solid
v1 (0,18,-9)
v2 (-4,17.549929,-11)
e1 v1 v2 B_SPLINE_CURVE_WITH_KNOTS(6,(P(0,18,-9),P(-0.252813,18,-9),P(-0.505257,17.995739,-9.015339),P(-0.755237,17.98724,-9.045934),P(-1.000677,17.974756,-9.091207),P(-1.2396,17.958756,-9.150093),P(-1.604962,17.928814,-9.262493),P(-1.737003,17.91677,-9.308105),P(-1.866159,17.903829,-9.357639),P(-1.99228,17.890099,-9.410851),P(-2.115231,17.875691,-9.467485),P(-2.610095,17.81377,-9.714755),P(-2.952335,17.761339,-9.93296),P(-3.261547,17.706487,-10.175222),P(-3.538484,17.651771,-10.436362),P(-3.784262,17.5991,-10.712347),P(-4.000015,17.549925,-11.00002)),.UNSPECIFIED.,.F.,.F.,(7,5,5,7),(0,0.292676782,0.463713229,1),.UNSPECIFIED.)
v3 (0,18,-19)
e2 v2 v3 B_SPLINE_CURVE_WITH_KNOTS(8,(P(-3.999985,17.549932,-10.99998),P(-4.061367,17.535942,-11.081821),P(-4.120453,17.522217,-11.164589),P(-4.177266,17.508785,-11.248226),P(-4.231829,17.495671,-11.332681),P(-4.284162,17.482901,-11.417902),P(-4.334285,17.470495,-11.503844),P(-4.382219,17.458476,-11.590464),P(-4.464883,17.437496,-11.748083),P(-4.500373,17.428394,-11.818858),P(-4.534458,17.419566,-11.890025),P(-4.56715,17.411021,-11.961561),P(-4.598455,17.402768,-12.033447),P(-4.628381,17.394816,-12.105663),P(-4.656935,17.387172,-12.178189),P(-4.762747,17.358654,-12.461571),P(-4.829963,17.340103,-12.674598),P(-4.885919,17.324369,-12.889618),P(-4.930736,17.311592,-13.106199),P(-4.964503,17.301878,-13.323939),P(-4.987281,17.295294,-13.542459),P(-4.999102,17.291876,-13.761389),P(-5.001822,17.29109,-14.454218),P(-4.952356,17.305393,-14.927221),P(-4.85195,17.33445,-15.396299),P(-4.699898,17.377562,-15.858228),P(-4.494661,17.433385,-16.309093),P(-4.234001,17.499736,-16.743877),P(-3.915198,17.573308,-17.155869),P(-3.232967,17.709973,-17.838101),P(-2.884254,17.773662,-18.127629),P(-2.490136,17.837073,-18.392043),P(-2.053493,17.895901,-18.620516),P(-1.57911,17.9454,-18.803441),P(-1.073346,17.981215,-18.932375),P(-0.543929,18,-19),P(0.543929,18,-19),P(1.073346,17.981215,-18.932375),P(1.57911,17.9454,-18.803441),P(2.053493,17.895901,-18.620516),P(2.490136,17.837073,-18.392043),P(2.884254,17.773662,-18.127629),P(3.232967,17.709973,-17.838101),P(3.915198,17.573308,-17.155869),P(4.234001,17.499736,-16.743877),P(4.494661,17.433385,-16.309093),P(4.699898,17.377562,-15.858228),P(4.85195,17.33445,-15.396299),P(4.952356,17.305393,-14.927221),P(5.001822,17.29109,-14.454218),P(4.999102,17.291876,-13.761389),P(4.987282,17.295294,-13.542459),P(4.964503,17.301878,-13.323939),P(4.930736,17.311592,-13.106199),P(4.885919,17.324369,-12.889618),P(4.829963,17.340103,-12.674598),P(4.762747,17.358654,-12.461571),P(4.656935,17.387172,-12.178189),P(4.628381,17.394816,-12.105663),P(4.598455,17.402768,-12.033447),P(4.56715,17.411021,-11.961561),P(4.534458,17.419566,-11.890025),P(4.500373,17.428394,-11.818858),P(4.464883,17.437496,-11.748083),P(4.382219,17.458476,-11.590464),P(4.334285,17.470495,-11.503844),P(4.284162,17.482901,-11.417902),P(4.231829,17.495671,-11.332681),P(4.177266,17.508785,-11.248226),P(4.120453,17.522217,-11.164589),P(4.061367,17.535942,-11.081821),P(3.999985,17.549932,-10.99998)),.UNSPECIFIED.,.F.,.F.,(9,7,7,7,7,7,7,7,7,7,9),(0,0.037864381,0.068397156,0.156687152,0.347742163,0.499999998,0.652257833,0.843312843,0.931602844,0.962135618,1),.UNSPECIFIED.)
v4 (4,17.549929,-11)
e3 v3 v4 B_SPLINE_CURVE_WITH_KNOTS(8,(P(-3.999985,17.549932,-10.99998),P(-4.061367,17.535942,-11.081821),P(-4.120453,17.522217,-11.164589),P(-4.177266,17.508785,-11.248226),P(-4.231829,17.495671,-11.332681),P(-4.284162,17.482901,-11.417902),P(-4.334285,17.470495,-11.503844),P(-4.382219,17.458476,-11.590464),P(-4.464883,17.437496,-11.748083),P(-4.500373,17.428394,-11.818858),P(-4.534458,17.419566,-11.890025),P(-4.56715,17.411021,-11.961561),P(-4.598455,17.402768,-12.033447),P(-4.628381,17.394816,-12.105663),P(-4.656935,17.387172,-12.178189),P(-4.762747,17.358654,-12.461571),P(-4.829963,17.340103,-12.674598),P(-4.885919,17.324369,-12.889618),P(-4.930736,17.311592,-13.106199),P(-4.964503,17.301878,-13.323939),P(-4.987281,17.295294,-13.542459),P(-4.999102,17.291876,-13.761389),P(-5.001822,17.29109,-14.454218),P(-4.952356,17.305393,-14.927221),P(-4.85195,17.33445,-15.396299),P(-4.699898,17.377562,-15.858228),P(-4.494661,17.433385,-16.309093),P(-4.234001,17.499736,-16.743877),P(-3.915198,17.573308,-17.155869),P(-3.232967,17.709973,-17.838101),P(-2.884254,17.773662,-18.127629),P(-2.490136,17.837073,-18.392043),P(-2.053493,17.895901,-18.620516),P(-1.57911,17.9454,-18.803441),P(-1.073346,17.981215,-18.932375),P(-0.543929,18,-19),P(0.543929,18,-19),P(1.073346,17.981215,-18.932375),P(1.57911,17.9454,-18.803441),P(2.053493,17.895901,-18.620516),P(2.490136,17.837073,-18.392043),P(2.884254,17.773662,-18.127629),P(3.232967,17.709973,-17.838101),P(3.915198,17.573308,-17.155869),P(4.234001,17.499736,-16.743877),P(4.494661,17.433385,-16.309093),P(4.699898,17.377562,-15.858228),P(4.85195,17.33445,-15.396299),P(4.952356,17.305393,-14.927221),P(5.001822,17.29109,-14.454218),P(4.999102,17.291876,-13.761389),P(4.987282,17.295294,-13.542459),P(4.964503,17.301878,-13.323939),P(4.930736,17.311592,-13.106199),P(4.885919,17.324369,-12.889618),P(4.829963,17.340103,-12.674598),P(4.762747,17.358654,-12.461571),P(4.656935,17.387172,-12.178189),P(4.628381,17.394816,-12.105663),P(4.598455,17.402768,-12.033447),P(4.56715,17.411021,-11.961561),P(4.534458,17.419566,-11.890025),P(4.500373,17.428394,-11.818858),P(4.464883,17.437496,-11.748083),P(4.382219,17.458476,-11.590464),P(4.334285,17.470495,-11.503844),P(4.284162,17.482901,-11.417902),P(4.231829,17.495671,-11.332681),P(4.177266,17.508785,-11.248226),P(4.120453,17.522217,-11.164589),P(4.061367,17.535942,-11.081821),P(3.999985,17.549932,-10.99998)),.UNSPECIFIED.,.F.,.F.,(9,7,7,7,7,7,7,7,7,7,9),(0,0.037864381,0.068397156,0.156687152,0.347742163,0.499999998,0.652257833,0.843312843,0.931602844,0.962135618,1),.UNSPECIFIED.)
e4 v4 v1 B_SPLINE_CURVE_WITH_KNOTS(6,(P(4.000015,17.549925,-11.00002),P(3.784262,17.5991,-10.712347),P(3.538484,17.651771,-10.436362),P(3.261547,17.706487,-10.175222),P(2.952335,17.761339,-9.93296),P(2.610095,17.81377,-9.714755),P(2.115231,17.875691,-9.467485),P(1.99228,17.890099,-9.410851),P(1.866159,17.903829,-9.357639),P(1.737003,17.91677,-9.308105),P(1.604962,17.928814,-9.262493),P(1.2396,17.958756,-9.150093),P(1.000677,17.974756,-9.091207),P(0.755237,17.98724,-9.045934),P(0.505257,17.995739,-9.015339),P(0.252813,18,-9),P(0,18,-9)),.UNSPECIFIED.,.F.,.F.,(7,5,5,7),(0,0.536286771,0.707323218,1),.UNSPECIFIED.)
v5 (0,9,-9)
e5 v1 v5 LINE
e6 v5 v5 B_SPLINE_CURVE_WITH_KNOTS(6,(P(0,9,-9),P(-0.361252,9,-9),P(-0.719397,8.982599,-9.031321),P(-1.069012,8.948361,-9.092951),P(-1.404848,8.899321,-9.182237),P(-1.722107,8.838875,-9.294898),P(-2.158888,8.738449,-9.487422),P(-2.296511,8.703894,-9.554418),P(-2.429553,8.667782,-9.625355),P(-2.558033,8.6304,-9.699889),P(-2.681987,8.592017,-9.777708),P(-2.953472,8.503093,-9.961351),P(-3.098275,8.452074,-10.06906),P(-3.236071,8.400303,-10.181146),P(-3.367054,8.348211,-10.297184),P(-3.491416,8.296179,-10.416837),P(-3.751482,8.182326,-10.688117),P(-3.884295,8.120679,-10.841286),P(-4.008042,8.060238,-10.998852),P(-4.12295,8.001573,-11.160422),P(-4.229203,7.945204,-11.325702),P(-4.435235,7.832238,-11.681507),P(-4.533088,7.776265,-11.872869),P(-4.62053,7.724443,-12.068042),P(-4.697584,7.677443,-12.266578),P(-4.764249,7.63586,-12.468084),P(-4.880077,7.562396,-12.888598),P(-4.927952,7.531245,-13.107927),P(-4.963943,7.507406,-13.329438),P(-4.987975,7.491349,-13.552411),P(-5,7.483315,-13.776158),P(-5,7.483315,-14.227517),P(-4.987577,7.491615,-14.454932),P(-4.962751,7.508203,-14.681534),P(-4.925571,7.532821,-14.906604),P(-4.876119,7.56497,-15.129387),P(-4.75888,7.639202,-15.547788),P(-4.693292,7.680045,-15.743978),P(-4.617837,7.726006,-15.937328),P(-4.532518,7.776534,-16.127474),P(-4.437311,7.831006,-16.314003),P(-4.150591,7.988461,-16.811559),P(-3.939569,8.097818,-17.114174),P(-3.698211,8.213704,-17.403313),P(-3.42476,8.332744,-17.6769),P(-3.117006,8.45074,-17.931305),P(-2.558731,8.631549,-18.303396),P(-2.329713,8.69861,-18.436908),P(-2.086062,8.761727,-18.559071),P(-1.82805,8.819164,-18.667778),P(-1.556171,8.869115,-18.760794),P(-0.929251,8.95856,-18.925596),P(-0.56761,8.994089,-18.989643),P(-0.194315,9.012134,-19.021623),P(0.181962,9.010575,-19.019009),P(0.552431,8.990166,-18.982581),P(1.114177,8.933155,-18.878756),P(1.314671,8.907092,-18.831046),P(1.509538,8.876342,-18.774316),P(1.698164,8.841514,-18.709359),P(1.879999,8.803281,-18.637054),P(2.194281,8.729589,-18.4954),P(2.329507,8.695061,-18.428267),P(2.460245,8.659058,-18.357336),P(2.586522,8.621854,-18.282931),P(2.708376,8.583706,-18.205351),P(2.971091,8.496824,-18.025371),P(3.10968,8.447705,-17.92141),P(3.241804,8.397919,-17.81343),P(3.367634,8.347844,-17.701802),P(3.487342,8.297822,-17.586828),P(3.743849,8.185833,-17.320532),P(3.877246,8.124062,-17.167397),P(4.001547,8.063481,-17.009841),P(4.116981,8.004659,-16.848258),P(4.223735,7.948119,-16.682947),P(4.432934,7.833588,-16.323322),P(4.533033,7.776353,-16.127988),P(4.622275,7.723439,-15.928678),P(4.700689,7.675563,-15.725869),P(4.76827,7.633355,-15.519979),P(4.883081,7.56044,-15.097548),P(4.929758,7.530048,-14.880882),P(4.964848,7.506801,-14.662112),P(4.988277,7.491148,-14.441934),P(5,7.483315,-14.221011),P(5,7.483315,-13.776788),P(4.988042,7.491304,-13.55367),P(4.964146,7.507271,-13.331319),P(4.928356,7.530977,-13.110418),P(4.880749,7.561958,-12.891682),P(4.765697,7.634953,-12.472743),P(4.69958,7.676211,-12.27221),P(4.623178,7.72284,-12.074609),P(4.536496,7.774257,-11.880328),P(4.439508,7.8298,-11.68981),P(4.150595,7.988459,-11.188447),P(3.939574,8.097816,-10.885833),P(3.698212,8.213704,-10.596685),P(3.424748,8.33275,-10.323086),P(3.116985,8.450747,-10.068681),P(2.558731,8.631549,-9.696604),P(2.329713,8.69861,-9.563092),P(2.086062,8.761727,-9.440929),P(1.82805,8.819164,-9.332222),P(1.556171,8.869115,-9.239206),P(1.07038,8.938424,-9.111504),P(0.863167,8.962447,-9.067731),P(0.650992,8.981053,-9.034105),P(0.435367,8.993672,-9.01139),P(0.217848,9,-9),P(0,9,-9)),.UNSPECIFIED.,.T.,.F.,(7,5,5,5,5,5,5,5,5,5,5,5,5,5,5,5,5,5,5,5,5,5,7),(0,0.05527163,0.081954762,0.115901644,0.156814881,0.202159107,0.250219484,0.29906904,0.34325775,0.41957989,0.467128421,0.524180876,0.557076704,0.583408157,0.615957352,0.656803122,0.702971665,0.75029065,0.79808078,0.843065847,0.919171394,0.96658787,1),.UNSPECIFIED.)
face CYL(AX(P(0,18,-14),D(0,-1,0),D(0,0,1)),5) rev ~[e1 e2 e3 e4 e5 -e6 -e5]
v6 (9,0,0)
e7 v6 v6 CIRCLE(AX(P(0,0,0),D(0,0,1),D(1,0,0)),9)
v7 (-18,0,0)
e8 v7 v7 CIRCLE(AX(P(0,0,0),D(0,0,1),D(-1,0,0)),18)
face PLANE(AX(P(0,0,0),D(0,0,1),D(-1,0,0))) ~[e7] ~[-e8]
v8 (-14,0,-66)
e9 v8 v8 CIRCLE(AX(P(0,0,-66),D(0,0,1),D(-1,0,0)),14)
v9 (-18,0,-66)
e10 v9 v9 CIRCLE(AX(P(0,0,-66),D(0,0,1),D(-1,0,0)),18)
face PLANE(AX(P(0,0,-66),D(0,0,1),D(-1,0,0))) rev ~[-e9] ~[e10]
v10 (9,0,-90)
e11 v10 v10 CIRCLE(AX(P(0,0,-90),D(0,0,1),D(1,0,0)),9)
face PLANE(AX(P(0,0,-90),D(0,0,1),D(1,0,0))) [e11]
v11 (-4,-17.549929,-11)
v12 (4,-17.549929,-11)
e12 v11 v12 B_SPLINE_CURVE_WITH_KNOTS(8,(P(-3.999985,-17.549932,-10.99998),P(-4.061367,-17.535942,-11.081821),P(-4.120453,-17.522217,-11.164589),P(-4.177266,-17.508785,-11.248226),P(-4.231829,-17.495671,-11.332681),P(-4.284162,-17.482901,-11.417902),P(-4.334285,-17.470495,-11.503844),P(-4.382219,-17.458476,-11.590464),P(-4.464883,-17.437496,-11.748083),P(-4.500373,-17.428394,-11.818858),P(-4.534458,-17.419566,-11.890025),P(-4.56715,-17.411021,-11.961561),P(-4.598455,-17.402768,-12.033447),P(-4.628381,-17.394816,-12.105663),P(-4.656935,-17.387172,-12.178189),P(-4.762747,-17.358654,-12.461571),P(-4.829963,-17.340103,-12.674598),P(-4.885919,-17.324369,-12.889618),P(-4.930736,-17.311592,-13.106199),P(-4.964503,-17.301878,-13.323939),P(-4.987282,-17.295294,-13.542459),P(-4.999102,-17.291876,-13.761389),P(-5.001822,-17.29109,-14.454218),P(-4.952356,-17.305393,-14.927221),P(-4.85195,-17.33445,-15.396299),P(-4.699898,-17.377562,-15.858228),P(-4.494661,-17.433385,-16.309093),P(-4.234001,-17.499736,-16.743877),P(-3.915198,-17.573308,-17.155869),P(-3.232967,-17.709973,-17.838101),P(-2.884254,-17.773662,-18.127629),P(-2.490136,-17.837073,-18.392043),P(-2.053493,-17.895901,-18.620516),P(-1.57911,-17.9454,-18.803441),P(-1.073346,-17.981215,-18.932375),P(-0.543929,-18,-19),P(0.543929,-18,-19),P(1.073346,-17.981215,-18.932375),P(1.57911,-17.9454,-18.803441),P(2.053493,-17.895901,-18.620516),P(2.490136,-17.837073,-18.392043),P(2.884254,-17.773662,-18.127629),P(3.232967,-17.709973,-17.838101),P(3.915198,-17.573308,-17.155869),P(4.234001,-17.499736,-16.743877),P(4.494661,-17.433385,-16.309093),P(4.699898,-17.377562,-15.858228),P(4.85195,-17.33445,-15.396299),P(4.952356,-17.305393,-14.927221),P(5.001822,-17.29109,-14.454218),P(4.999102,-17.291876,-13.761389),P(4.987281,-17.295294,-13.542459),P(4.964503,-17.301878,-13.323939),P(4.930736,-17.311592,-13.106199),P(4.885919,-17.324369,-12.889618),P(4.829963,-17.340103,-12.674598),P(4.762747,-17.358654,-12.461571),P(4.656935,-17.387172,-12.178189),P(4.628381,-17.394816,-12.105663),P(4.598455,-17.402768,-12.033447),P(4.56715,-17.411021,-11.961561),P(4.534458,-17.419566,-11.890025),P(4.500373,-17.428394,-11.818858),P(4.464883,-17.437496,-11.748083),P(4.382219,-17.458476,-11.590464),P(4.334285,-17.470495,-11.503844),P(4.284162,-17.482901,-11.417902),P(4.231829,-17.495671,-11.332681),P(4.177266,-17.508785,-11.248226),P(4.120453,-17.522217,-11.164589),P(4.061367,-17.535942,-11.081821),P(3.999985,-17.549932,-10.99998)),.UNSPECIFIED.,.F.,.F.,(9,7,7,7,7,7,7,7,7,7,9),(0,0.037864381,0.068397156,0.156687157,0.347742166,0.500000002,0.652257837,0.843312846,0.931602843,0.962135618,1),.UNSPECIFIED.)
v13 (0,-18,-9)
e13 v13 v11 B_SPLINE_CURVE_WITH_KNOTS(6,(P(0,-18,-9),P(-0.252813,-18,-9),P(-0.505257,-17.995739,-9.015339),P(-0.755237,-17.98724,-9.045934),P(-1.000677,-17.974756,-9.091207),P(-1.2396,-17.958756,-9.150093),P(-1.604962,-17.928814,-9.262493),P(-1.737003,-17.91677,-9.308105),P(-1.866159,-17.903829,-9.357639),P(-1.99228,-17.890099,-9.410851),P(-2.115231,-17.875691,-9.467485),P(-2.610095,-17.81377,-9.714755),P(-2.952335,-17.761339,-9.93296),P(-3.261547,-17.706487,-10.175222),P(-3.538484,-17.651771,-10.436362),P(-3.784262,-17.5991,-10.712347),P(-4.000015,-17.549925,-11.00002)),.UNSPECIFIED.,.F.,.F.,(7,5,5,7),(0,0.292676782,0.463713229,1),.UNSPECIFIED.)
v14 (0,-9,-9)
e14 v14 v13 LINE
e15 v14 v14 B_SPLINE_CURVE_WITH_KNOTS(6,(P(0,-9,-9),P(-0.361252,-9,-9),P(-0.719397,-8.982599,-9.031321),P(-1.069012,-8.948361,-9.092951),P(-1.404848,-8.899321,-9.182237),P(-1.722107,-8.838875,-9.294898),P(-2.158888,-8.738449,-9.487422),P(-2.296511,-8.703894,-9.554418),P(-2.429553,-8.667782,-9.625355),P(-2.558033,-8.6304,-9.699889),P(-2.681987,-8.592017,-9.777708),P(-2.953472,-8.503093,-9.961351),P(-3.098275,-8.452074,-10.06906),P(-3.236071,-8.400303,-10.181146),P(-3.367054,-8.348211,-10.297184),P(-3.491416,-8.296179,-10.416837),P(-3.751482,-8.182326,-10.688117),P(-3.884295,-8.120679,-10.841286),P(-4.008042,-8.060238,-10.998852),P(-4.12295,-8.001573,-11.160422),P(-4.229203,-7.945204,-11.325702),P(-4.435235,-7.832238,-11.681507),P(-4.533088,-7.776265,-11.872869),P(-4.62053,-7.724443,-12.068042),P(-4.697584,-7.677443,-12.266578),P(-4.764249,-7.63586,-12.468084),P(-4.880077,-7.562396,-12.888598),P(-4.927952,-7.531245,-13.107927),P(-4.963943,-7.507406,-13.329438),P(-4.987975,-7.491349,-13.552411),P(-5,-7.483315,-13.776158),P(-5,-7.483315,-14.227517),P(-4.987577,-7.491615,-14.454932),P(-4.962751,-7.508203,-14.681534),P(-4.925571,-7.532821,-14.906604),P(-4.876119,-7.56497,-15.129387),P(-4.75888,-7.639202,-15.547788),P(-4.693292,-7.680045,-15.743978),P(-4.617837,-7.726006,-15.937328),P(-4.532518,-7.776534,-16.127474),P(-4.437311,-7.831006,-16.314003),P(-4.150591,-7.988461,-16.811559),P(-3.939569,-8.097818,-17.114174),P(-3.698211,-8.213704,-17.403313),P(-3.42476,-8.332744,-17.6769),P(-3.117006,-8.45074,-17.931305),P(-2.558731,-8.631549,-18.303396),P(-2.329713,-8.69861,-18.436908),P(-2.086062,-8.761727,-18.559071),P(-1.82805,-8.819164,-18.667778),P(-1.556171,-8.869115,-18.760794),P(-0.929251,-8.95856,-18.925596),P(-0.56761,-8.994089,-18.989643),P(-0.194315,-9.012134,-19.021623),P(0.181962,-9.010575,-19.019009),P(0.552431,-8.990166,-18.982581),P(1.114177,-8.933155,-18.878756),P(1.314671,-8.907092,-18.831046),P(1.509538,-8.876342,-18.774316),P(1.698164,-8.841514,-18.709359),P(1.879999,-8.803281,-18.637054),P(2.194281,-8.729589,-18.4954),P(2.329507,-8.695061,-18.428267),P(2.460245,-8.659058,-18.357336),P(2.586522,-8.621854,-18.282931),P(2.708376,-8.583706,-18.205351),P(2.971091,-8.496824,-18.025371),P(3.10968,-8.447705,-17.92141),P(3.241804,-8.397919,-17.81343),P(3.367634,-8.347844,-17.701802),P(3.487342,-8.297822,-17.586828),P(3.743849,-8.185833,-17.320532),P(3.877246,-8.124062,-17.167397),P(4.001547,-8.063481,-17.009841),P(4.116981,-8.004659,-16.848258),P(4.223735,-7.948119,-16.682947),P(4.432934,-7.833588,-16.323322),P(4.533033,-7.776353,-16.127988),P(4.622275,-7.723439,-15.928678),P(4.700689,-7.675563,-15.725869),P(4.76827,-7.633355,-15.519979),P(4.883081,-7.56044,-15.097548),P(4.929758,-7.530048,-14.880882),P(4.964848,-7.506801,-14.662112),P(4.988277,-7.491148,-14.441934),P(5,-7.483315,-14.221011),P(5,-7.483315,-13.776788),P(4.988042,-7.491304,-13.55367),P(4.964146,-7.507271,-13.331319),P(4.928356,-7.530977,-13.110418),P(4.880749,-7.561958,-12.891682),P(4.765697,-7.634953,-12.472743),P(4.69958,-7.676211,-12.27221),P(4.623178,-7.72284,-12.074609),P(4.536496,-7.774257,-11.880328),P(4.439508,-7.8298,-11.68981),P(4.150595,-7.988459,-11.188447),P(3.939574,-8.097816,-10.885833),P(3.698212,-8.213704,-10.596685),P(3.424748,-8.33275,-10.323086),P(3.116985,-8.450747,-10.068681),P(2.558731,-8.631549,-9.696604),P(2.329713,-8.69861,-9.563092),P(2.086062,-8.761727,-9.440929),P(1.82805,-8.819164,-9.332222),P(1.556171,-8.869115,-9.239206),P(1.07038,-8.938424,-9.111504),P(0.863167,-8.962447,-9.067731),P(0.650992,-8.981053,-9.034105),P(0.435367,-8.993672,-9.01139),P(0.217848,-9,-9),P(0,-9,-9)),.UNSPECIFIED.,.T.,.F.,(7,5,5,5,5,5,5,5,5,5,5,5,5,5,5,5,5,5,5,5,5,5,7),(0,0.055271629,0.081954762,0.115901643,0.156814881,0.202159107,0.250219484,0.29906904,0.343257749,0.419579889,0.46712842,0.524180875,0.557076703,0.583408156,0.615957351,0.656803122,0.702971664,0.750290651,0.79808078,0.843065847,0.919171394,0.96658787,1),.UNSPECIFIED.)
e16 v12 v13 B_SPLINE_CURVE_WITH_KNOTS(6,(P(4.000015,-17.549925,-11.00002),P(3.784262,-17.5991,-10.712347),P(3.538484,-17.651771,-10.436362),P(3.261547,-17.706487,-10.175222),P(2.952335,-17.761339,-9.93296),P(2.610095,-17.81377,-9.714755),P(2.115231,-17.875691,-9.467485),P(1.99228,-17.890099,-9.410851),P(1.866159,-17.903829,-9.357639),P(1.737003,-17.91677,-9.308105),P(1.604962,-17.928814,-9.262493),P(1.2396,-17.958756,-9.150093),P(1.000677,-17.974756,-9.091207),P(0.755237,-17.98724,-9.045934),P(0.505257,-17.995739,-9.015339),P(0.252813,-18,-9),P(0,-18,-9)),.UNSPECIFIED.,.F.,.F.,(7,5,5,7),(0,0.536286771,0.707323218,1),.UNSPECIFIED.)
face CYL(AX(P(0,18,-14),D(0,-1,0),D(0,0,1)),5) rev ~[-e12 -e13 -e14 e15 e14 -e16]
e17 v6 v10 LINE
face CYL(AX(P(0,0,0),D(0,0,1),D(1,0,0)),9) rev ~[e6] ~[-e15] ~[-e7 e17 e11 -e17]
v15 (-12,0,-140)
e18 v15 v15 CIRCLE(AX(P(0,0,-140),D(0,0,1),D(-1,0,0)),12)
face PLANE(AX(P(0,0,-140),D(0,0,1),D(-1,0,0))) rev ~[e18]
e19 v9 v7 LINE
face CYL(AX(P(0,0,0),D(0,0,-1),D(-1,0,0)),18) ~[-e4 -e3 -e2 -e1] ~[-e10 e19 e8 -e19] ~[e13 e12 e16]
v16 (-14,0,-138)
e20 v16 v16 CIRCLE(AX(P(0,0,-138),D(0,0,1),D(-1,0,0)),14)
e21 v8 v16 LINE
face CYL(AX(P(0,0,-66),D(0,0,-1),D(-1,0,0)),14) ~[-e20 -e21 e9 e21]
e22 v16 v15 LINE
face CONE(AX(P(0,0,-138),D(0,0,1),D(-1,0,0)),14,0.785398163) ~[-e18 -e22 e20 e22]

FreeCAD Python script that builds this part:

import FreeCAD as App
import Part
import Sketcher


def edges_at(feature, points):
    """Names of the edges that pass closest to the given points."""
    edges = feature.Shape.Edges
    near = lambda p: min(range(len(edges)), key=lambda i: edges[i].distToShape(Part.Vertex(*p))[0])
    return sorted({f"Edge{near(p) + 1}" for p in points})


def add_polygon(sketch, points):
    """Adds a closed chain of lines whose ends are joined by coincident constraints."""
    first, n = sketch.GeometryCount, len(points)
    for a, b in zip(points, points[1:] + points[:1]):
        sketch.addGeometry(Part.LineSegment(App.Vector(*a, 0), App.Vector(*b, 0)), False)
    for i in range(n):
        sketch.addConstraint(Sketcher.Constraint("Coincident", first + i, 2, first + (i + 1) % n, 1))

doc = App.newDocument("Part")
body = doc.addObject("PartDesign::Body", "Body")

# Sketch on XZ plane
sketch1 = body.newObject("Sketcher::SketchObject", "Sketch")
sketch1.AttachmentSupport = (doc.getObject("XZ_Plane"), [""])
sketch1.MapMode = "FlatFace"
add_polygon(sketch1, [(-18, 0), (0, 0), (0, -140), (-14, -140), (-14, -66), (-18, -66)])  # lines 0-5
sketch1.addConstraint([
    Sketcher.Constraint("Horizontal", 0),
    Sketcher.Constraint("Vertical", 1),
    Sketcher.Constraint("Horizontal", 2),
    Sketcher.Constraint("Vertical", 3),
    Sketcher.Constraint("Horizontal", 4),
    Sketcher.Constraint("Vertical", 5),
    Sketcher.Constraint("Coincident", 0, 2, -1, 1),
    Sketcher.Constraint("DistanceY", 3, 1, 3, 2, 74.0),
    Sketcher.Constraint("DistanceY", 5, 1, 5, 2, 66.0),
    Sketcher.Constraint("DistanceX", 0, 1, 0, 2, 18.0),
    Sketcher.Constraint("DistanceX", 2, 2, 2, 1, 14.0),
])
revolution = body.newObject("PartDesign::Revolution", "Revolution")
revolution.Profile = sketch1
revolution.ReferenceAxis = (sketch1, ["V_Axis"])
revolution.Angle = 360

# Sketch on XZ plane
sketch2 = body.newObject("Sketcher::SketchObject", "Sketch001")
sketch2.AttachmentSupport = (doc.getObject("XZ_Plane"), [""])
sketch2.MapMode = "FlatFace"
sketch2.AttachmentOffset = App.Placement(App.Vector(0, 0, -18), App.Rotation())
sketch2.addGeometry(Part.Circle(App.Vector(0, -14, 0), App.Vector(0, 0, 1), 5), False)
sketch2.addConstraint([
    Sketcher.Constraint("PointOnObject", 0, 3, -2),
    Sketcher.Constraint("Diameter", 0, 10.0),
    Sketcher.Constraint("DistanceY", 0, 3, -1, 1, 14.0),
])
doc.recompute()
hole = body.newObject("PartDesign::Hole", "Hole")
hole.Profile = sketch2
hole.ThreadType = "None"
hole.Diameter = 10
hole.DepthType = "ThroughAll"
hole.Reversed = True

# Sketch on XY plane
sketch3 = body.newObject("Sketcher::SketchObject", "Sketch002")
sketch3.AttachmentSupport = (doc.getObject("XY_Plane"), [""])
sketch3.MapMode = "FlatFace"
sketch3.addGeometry(Part.Circle(App.Vector(0, 0, 0), App.Vector(0, 0, 1), 9), False)
sketch3.addConstraint([
    Sketcher.Constraint("Coincident", 0, 3, -1, 1),
    Sketcher.Constraint("Diameter", 0, 18.0),
])
pocket1 = body.newObject("PartDesign::Pocket", "Pocket")
pocket1.Profile = sketch3
pocket1.Length = 90
doc.recompute()

chamfer = body.newObject("PartDesign::Chamfer", "Chamfer")
chamfer.Base = (pocket1, edges_at(pocket1, [(14, 0, -140)]))
chamfer.Size = 2

doc.recompute()
